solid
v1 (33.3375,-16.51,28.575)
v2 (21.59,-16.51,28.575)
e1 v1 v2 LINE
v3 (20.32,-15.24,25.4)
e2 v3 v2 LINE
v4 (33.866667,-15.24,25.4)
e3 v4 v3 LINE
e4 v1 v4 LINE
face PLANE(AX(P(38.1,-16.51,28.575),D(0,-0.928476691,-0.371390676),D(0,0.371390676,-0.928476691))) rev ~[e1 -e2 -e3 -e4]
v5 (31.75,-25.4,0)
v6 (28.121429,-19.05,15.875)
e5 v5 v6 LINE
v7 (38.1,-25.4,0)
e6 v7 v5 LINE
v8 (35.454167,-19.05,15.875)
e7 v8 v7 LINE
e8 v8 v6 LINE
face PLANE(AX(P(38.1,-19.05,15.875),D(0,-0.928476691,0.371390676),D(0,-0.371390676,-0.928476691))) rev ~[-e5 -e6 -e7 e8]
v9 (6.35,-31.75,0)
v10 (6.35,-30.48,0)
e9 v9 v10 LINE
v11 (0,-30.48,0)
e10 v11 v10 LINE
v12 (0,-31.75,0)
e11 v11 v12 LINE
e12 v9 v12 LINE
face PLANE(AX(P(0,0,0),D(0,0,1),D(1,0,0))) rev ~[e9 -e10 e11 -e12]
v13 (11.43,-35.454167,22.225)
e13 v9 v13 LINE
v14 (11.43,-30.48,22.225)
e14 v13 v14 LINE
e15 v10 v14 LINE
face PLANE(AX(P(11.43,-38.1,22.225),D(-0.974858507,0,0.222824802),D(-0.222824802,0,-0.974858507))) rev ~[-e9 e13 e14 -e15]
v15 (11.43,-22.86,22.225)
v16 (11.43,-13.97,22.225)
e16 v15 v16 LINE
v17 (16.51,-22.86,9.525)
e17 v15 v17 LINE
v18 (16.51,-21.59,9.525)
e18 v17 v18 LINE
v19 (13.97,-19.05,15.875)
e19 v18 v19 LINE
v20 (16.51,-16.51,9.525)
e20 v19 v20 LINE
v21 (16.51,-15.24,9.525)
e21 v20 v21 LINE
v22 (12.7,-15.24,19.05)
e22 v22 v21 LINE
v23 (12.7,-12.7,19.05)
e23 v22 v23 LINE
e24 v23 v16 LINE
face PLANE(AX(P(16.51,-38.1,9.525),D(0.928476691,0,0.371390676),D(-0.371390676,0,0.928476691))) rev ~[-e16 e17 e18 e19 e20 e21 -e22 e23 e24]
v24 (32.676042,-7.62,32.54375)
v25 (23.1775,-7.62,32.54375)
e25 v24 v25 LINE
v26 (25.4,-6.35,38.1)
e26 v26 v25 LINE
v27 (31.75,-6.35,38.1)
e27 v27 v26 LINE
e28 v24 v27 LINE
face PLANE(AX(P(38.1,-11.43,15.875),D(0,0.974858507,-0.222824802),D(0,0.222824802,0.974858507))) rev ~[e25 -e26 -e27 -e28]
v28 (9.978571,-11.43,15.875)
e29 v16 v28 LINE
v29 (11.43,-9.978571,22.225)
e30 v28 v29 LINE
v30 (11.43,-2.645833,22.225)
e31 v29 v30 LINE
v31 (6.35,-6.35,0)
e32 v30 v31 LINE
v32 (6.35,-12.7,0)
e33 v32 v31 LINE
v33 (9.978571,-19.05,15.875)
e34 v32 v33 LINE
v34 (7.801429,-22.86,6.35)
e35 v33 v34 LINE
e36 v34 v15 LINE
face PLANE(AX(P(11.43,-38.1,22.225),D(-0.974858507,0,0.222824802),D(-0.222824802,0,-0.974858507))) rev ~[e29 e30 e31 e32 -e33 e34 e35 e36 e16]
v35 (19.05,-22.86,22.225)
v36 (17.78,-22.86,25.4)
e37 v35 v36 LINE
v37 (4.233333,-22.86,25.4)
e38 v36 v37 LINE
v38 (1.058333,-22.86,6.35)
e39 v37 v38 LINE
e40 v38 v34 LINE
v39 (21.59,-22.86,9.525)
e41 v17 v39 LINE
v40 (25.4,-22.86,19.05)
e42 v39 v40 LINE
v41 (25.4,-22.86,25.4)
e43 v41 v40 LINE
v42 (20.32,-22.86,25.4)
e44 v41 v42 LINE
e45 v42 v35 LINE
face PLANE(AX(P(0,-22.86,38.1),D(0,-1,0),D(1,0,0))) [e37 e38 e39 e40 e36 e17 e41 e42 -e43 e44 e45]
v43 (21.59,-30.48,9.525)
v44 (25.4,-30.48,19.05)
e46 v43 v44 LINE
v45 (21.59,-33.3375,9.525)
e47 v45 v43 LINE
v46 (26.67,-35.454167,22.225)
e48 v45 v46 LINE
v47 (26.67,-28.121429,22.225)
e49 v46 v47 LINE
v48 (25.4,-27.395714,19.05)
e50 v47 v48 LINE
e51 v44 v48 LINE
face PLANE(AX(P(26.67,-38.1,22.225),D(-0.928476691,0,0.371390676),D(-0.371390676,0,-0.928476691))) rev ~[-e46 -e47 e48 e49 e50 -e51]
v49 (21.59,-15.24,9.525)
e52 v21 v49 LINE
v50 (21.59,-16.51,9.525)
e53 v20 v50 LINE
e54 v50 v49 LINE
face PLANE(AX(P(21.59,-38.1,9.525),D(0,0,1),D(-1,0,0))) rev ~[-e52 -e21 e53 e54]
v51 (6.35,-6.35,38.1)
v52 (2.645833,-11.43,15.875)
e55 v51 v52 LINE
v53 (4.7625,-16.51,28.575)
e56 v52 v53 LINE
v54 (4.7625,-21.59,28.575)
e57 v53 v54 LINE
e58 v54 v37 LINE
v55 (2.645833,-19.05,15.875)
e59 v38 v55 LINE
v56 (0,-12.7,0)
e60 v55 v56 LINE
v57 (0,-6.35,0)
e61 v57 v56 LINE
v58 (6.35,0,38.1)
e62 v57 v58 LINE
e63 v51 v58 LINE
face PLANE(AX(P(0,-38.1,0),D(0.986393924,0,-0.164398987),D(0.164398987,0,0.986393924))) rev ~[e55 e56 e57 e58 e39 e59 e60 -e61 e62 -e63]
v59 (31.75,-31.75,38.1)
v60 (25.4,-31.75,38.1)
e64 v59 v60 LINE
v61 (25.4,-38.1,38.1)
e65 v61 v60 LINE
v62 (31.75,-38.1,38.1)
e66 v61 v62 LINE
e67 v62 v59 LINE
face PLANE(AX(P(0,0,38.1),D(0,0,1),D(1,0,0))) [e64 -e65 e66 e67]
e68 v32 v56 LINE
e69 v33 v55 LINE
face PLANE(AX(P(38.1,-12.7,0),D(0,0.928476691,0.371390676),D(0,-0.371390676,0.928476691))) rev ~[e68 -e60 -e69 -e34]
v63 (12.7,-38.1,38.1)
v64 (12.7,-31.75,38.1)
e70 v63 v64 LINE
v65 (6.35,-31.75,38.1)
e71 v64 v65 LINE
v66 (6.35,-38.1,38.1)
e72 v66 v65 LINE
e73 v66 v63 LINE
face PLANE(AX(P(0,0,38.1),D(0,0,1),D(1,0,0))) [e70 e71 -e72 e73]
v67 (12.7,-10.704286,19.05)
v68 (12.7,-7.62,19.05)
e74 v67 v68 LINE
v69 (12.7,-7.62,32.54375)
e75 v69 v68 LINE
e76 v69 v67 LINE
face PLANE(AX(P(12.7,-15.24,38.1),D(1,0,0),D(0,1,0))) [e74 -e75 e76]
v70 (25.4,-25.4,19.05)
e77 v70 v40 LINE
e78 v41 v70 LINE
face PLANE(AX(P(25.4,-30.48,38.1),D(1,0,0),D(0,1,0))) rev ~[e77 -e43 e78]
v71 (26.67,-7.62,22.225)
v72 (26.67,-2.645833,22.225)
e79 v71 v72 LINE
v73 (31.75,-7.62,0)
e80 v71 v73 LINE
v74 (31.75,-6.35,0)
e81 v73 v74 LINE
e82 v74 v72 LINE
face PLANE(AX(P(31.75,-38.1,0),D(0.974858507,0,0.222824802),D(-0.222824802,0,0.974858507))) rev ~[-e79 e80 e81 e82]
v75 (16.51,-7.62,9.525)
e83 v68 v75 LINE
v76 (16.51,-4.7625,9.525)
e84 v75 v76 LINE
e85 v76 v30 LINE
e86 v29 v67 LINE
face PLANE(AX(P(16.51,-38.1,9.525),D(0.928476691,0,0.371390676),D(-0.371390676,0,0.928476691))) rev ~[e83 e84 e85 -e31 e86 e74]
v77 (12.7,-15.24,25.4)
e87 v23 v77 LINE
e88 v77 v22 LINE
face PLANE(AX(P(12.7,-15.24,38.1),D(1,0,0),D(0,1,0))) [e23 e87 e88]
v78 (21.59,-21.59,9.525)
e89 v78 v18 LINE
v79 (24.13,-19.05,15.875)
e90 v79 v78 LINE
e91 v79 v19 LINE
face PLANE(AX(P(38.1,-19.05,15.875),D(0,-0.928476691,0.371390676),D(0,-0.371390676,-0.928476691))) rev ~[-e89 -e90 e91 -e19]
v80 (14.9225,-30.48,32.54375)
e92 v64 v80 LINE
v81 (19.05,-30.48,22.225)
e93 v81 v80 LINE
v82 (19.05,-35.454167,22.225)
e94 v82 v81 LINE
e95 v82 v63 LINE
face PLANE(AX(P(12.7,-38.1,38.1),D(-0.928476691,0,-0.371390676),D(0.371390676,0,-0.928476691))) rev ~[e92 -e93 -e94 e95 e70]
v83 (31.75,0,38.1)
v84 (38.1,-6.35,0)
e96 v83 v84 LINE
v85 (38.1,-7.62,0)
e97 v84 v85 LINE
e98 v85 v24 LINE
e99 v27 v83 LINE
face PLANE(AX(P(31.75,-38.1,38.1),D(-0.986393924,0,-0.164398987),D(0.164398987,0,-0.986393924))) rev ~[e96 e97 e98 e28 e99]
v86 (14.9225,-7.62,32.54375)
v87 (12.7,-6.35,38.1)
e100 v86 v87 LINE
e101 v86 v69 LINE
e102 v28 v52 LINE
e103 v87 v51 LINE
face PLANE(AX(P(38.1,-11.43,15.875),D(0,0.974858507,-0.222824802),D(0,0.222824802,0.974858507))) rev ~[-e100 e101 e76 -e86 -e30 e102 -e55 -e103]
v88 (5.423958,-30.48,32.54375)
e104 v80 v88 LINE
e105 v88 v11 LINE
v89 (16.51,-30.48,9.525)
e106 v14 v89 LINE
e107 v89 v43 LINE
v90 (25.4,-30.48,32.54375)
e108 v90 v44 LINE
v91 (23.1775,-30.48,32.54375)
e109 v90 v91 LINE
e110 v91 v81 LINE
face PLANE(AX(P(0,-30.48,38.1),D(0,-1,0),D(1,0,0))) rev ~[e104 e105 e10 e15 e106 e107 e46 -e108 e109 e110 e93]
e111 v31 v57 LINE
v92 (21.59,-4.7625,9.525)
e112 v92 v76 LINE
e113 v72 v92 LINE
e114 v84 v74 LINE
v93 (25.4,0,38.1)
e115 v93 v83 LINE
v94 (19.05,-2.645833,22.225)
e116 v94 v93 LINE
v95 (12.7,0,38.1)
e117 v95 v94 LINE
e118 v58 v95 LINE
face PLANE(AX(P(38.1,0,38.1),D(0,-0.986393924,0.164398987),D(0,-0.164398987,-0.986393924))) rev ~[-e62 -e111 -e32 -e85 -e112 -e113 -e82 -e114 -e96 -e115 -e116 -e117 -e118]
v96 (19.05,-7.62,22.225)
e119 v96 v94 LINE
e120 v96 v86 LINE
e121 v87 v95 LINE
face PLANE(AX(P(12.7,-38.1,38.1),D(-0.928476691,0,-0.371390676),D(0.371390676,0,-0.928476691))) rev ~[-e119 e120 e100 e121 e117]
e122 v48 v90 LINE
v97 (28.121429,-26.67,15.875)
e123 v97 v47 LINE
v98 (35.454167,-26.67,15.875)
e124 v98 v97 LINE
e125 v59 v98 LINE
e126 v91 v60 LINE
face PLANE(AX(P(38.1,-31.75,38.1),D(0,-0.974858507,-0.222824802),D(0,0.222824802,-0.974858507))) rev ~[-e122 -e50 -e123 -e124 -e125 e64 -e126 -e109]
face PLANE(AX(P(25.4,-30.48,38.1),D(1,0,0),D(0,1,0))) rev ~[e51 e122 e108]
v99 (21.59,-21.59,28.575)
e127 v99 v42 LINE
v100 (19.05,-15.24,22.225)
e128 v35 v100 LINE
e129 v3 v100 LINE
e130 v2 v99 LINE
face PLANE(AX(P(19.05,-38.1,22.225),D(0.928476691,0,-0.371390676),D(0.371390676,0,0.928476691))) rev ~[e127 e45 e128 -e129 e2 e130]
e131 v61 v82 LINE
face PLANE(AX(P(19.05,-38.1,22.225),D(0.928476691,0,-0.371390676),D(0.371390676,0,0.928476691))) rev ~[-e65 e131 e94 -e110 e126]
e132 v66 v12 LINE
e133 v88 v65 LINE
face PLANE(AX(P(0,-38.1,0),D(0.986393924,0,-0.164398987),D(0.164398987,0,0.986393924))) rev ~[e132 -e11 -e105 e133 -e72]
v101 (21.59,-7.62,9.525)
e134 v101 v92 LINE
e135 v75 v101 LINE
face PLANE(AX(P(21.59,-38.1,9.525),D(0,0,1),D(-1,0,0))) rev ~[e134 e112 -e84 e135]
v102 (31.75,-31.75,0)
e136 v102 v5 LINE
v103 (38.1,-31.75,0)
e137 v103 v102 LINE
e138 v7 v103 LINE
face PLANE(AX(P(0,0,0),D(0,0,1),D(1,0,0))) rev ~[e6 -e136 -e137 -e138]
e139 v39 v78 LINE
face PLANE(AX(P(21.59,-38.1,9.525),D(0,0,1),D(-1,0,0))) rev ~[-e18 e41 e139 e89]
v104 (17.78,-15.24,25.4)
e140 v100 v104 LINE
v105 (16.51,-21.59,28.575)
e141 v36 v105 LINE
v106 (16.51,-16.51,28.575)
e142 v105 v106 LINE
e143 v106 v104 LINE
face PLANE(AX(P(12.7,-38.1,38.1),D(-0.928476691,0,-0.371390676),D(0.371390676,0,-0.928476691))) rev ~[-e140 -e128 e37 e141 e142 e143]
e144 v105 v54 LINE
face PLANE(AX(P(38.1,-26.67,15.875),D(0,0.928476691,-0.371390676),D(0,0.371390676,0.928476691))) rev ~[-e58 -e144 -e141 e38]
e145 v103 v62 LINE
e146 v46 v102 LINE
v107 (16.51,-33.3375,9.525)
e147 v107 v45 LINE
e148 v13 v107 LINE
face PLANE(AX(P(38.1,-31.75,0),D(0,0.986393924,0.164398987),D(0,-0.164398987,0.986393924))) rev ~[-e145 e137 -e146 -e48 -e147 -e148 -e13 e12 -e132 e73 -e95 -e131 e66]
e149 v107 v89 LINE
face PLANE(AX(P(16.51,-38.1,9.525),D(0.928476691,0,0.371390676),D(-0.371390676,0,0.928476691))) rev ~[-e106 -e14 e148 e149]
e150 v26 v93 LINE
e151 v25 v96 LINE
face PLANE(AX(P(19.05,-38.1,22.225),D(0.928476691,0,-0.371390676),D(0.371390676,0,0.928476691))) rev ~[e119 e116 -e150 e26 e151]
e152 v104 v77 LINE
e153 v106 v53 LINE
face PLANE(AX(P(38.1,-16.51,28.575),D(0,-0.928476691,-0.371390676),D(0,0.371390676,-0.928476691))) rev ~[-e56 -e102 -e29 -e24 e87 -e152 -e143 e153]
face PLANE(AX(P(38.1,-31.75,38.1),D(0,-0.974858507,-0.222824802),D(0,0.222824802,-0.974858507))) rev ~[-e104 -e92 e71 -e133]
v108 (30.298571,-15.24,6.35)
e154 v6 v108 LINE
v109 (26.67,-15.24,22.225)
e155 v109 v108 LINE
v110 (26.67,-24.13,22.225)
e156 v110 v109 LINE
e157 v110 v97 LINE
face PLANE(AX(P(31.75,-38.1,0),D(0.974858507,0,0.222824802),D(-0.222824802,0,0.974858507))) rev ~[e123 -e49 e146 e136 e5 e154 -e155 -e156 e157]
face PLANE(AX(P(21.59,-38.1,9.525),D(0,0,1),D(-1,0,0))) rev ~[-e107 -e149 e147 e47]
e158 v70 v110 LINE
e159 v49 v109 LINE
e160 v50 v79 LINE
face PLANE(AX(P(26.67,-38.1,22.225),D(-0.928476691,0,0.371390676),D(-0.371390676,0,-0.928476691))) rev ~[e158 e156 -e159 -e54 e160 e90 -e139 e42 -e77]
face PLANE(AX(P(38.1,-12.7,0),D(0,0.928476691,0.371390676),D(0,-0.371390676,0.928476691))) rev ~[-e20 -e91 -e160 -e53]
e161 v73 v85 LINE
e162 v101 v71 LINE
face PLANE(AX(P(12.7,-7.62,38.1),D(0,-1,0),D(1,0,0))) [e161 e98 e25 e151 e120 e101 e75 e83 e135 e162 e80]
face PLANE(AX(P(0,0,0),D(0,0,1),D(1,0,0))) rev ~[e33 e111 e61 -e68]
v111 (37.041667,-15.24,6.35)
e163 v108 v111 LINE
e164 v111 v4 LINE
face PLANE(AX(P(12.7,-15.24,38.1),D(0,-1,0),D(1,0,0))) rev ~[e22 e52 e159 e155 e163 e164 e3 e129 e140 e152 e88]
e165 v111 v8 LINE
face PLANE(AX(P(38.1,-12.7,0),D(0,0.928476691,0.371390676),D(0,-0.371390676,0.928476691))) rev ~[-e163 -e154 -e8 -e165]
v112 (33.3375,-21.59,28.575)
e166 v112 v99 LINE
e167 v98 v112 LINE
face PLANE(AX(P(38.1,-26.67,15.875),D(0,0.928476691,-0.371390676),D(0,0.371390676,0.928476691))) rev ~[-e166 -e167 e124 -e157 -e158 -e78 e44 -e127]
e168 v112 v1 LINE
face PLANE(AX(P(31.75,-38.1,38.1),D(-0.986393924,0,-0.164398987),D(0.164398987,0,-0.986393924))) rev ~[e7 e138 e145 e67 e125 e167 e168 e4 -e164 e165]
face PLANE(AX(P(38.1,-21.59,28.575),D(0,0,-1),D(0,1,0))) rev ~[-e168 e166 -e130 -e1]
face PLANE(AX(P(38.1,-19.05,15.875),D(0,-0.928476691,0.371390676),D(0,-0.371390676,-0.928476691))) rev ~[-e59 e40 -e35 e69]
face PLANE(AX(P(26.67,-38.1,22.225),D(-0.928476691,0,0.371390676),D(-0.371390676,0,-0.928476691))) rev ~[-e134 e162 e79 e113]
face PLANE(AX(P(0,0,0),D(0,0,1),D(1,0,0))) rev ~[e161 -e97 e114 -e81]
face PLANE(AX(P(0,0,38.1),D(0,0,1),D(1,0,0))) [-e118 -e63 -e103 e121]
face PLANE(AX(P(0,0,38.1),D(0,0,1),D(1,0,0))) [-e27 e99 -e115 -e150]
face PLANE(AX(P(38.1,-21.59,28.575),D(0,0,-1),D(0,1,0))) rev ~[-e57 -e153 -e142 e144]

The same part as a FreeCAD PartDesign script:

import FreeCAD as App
import Part
import Sketcher

V = App.Vector
Q = App.Units.Quantity


def add_polygon(sketch, points):
    """Adds a closed chain of lines whose ends are joined by coincident constraints."""
    first, n = sketch.GeometryCount, len(points)
    for a, b in zip(points, points[1:] + points[:1]):
        sketch.addGeometry(Part.LineSegment(App.Vector(*a, 0), App.Vector(*b, 0)), False)
    for i in range(n):
        sketch.addConstraint(Sketcher.Constraint("Coincident", first + i, 2, first + (i + 1) % n, 1))

doc = App.newDocument("Part")
params = doc.addObject("Spreadsheet::Sheet", "Params")
for row, (alias, value) in enumerate([
    ("sketch1_width", "1.5 in"),
    ("pad1_length", "1.5 in"),
    ("sketch2_width", "1 in"),
    ("sketch2_width2", "0.5 in"),
    ("sketch2_width3", "0.2 in"),
    ("sketch2_height", "1.5 in"),
    ("pocket1_length", "1.5 in"),
    ("sketch3_width", "1 in"),
    ("sketch3_width2", "0.2 in"),
    ("sketch3_width3", "0.5 in"),
    ("sketch3_height", "1.5 in"),
    ("pocket2_length", "1.5 in"),
    ("sketch4_width", "1 in"),
    ("sketch4_height", "0.3 in"),
    ("pocket3_length", "1.5 in"),
], start=1):
    params.set(f"A{row}", alias)
    params.set(f"B{row}", "=" + value)
    params.setAlias(f"B{row}", alias)

body = doc.addObject("PartDesign::Body", "Body")

sketch1 = doc.addObject("Sketcher::SketchObject", "Sketch")
body.addObject(sketch1)
sketch1.AttachmentSupport = (doc.XZ_Plane, [""])
sketch1.MapMode = "FlatFace"
add_polygon(sketch1, [(0, 38), (0, 0), (38, 0), (38, 38)])
sketch1.addConstraint(Sketcher.Constraint("Vertical", 0))
sketch1.addConstraint(Sketcher.Constraint("Horizontal", 1))
sketch1.addConstraint(Sketcher.Constraint("Vertical", 2))
sketch1.addConstraint(Sketcher.Constraint("Horizontal", 3))
sketch1.addConstraint(Sketcher.Constraint("Coincident", 0, 2, -1, 1))
sketch1.addConstraint(Sketcher.Constraint("Equal", 3, 0))
sketch1.addConstraint(Sketcher.Constraint("DistanceX", 1, 1, 1, 2, Q("1.5 in")))
sketch1.setExpression("Constraints[10]", "Params.sketch1_width")
pad1 = doc.addObject("PartDesign::Pad", "Pad")
body.addObject(pad1)
pad1.Profile = sketch1
pad1.setExpression("Length", "Params.pad1_length")

sketch2 = doc.addObject("Sketcher::SketchObject", "Sketch001")
body.addObject(sketch2)
sketch2.AttachmentSupport = (doc.YZ_Plane, [""])
sketch2.MapMode = "FlatFace"
sketch2.AttachmentOffset = App.Placement(V(0, 0, 1.5 * 25.4), App.Rotation())
add_polygon(sketch2, [(-25, 0), (-13, 0), (-19, 16)])
add_polygon(sketch2, [(-11, 16), (-6, 38), (-32, 38), (-27, 16), (-22, 29), (-17, 29)])
add_polygon(sketch2, [(-32, 0), (-38, 38), (-38, 0)])
add_polygon(sketch2, [(-6, 0), (0, 0), (0, 38)])
sketch2.addConstraint(Sketcher.Constraint("Horizontal", 0))
sketch2.addConstraint(Sketcher.Constraint("Horizontal", 4))
sketch2.addConstraint(Sketcher.Constraint("Horizontal", 7))
sketch2.addConstraint(Sketcher.Constraint("Vertical", 10))
sketch2.addConstraint(Sketcher.Constraint("Horizontal", 11))
sketch2.addConstraint(Sketcher.Constraint("Horizontal", 12))
sketch2.addConstraint(Sketcher.Constraint("Vertical", 13))
sketch2.addConstraint(Sketcher.Constraint("Coincident", 12, 2, -1, 1))
sketch2.addConstraint(Sketcher.Constraint("PointOnObject", 0, 2, -1))
sketch2.addConstraint(Sketcher.Constraint("PointOnObject", 10, 2, -1))
sketch2.addConstraint(Sketcher.Constraint("Parallel", 2, 6))
sketch2.addConstraint(Sketcher.Constraint("Parallel", 1, 8))
sketch2.addConstraint(Sketcher.Constraint("Horizontal", 1, 2, 5, 2))
sketch2.addConstraint(Sketcher.Constraint("Horizontal", 5, 2, 8, 2))
sketch2.addConstraint(Sketcher.Constraint("Horizontal", 4, 2, 9, 2))
sketch2.addConstraint(Sketcher.Constraint("Horizontal", 9, 2, 13, 2))
sketch2.addConstraint(Sketcher.Constraint("Vertical", 4, 2, 11, 2))
sketch2.addConstraint(Sketcher.Constraint("Vertical", 3, 2, 14, 2))
sketch2.addConstraint(Sketcher.Constraint("Equal", 11, 12))
sketch2.addConstraint(Sketcher.Constraint("Equal", 1, 2))
sketch2.addConstraint(Sketcher.Constraint("Equal", 3, 5))
sketch2.addConstraint(Sketcher.Constraint("DistanceX", 4, 2, 4, 1, Q("1 in")))
sketch2.addConstraint(Sketcher.Constraint("DistanceX", 0, 1, 0, 2, Q("0.5 in")))
sketch2.addConstraint(Sketcher.Constraint("DistanceX", 7, 1, 7, 2, Q("0.2 in")))
sketch2.addConstraint(Sketcher.Constraint("DistanceY", 10, 2, 10, 1, Q("1.5 in")))
sketch2.addConstraint(Sketcher.Constraint("DistanceX", 2, 2, -1, 1, Q("1 in")))
sketch2.addConstraint(Sketcher.Constraint("DistanceX", 10, 2, 0, 2, Q("1 in")))
sketch2.addConstraint(Sketcher.Constraint("DistanceX", 5, 2, 1, 2, Q("0.3 in")))
sketch2.addConstraint(Sketcher.Constraint("DistanceY", 1, 2, 6, 2, Q("0.5 in")))
sketch2.setExpression("Constraints[36]", "Params.sketch2_width")
sketch2.setExpression("Constraints[37]", "Params.sketch2_width2")
sketch2.setExpression("Constraints[38]", "Params.sketch2_width3")
sketch2.setExpression("Constraints[39]", "Params.sketch2_height")
pocket1 = doc.addObject("PartDesign::Pocket", "Pocket")
body.addObject(pocket1)
pocket1.Profile = sketch2
pocket1.setExpression("Length", "Params.pocket1_length")

sketch3 = doc.addObject("Sketcher::SketchObject", "Sketch002")
body.addObject(sketch3)
sketch3.AttachmentSupport = (doc.XZ_Plane, [""])
sketch3.MapMode = "FlatFace"
sketch3.AttachmentOffset = App.Placement(V(0, 0, 1.5 * 25.4), App.Rotation())
add_polygon(sketch3, [(11, 22), (6, 0), (32, 0), (27, 22), (22, 10), (17, 10)])
add_polygon(sketch3, [(25, 38), (13, 38), (19, 22)])
add_polygon(sketch3, [(0, 38), (0, 0), (6, 38)])
add_polygon(sketch3, [(32, 38), (38, 0), (38, 38)])
sketch3.addConstraint(Sketcher.Constraint("Horizontal", 1))
sketch3.addConstraint(Sketcher.Constraint("Horizontal", 4))
sketch3.addConstraint(Sketcher.Constraint("Horizontal", 6))
sketch3.addConstraint(Sketcher.Constraint("Vertical", 9))
sketch3.addConstraint(Sketcher.Constraint("Horizontal", 11))
sketch3.addConstraint(Sketcher.Constraint("Vertical", 13))
sketch3.addConstraint(Sketcher.Constraint("Horizontal", 14))
sketch3.addConstraint(Sketcher.Constraint("Coincident", 9, 2, -1, 1))
sketch3.addConstraint(Sketcher.Constraint("PointOnObject", 0, 2, -1))
sketch3.addConstraint(Sketcher.Constraint("PointOnObject", 12, 2, -1))
sketch3.addConstraint(Sketcher.Constraint("Parallel", 5, 7))
sketch3.addConstraint(Sketcher.Constraint("Parallel", 3, 8))
sketch3.addConstraint(Sketcher.Constraint("Horizontal", 2, 2, 5, 2))
sketch3.addConstraint(Sketcher.Constraint("Horizontal", 5, 2, 7, 2))
sketch3.addConstraint(Sketcher.Constraint("Horizontal", 8, 2, 10, 2))
sketch3.addConstraint(Sketcher.Constraint("Horizontal", 11, 2, 13, 2))
sketch3.addConstraint(Sketcher.Constraint("Vertical", 0, 2, 10, 2))
sketch3.addConstraint(Sketcher.Constraint("Vertical", 1, 2, 14, 2))
sketch3.addConstraint(Sketcher.Constraint("Equal", 11, 14))
sketch3.addConstraint(Sketcher.Constraint("Equal", 0, 2))
sketch3.addConstraint(Sketcher.Constraint("Equal", 3, 5))
sketch3.addConstraint(Sketcher.Constraint("DistanceX", 1, 1, 1, 2, Q("1 in")))
sketch3.addConstraint(Sketcher.Constraint("DistanceX", 4, 2, 4, 1, Q("0.2 in")))
sketch3.addConstraint(Sketcher.Constraint("DistanceX", 6, 2, 6, 1, Q("0.5 in")))
sketch3.addConstraint(Sketcher.Constraint("DistanceY", 9, 2, 9, 1, Q("1.5 in")))
sketch3.addConstraint(Sketcher.Constraint("DistanceX", -1, 1, 8, 2, Q("1 in")))
sketch3.addConstraint(Sketcher.Constraint("DistanceX", 6, 2, 13, 2, Q("1 in")))
sketch3.addConstraint(Sketcher.Constraint("DistanceX", 2, 2, 1, 2, Q("0.2 in")))
sketch3.addConstraint(Sketcher.Constraint("DistanceY", 3, 2, 2, 2, Q("0.5 in")))
sketch3.setExpression("Constraints[36]", "Params.sketch3_width")
sketch3.setExpression("Constraints[37]", "Params.sketch3_width2")
sketch3.setExpression("Constraints[38]", "Params.sketch3_width3")
sketch3.setExpression("Constraints[39]", "Params.sketch3_height")
pocket2 = doc.addObject("PartDesign::Pocket", "Pocket001")
body.addObject(pocket2)
pocket2.Profile = sketch3
pocket2.setExpression("Length", "Params.pocket2_length")

sketch4 = doc.addObject("Sketcher::SketchObject", "Sketch003")
body.addObject(sketch4)
sketch4.AttachmentSupport = (doc.XY_Plane, [""])
sketch4.MapMode = "FlatFace"
sketch4.AttachmentOffset = App.Placement(V(0, 0, 1.5 * 25.4), App.Rotation())
add_polygon(sketch4, [(13, -8), (13, -15), (38, -15), (38, -8)])
add_polygon(sketch4, [(0, -23), (0, -30), (25, -30), (25, -23)])
sketch4.addConstraint(Sketcher.Constraint("Vertical", 0))
sketch4.addConstraint(Sketcher.Constraint("Horizontal", 1))
sketch4.addConstraint(Sketcher.Constraint("Vertical", 2))
sketch4.addConstraint(Sketcher.Constraint("Horizontal", 3))
sketch4.addConstraint(Sketcher.Constraint("Vertical", 4))
sketch4.addConstraint(Sketcher.Constraint("Horizontal", 5))
sketch4.addConstraint(Sketcher.Constraint("Vertical", 6))
sketch4.addConstraint(Sketcher.Constraint("Horizontal", 7))
sketch4.addConstraint(Sketcher.Constraint("PointOnObject", 4, 2, -2))
sketch4.addConstraint(Sketcher.Constraint("Equal", 3, 5))
sketch4.addConstraint(Sketcher.Constraint("Equal", 2, 4))
sketch4.addConstraint(Sketcher.Constraint("DistanceX", 1, 1, 1, 2, Q("1 in")))
sketch4.addConstraint(Sketcher.Constraint("DistanceY", 0, 2, 0, 1, Q("0.3 in")))
sketch4.addConstraint(Sketcher.Constraint("DistanceX", -1, 1, 0, 2, Q("0.5 in")))
sketch4.addConstraint(Sketcher.Constraint("DistanceY", 0, 2, -1, 1, Q("0.6 in")))
sketch4.addConstraint(Sketcher.Constraint("DistanceY", 4, 2, -1, 1, Q("1.2 in")))
sketch4.setExpression("Constraints[19]", "Params.sketch4_width")
sketch4.setExpression("Constraints[20]", "Params.sketch4_height")
pocket3 = doc.addObject("PartDesign::Pocket", "Pocket002")
body.addObject(pocket3)
pocket3.Profile = sketch4
pocket3.setExpression("Length", "Params.pocket3_length")

doc.recompute()
